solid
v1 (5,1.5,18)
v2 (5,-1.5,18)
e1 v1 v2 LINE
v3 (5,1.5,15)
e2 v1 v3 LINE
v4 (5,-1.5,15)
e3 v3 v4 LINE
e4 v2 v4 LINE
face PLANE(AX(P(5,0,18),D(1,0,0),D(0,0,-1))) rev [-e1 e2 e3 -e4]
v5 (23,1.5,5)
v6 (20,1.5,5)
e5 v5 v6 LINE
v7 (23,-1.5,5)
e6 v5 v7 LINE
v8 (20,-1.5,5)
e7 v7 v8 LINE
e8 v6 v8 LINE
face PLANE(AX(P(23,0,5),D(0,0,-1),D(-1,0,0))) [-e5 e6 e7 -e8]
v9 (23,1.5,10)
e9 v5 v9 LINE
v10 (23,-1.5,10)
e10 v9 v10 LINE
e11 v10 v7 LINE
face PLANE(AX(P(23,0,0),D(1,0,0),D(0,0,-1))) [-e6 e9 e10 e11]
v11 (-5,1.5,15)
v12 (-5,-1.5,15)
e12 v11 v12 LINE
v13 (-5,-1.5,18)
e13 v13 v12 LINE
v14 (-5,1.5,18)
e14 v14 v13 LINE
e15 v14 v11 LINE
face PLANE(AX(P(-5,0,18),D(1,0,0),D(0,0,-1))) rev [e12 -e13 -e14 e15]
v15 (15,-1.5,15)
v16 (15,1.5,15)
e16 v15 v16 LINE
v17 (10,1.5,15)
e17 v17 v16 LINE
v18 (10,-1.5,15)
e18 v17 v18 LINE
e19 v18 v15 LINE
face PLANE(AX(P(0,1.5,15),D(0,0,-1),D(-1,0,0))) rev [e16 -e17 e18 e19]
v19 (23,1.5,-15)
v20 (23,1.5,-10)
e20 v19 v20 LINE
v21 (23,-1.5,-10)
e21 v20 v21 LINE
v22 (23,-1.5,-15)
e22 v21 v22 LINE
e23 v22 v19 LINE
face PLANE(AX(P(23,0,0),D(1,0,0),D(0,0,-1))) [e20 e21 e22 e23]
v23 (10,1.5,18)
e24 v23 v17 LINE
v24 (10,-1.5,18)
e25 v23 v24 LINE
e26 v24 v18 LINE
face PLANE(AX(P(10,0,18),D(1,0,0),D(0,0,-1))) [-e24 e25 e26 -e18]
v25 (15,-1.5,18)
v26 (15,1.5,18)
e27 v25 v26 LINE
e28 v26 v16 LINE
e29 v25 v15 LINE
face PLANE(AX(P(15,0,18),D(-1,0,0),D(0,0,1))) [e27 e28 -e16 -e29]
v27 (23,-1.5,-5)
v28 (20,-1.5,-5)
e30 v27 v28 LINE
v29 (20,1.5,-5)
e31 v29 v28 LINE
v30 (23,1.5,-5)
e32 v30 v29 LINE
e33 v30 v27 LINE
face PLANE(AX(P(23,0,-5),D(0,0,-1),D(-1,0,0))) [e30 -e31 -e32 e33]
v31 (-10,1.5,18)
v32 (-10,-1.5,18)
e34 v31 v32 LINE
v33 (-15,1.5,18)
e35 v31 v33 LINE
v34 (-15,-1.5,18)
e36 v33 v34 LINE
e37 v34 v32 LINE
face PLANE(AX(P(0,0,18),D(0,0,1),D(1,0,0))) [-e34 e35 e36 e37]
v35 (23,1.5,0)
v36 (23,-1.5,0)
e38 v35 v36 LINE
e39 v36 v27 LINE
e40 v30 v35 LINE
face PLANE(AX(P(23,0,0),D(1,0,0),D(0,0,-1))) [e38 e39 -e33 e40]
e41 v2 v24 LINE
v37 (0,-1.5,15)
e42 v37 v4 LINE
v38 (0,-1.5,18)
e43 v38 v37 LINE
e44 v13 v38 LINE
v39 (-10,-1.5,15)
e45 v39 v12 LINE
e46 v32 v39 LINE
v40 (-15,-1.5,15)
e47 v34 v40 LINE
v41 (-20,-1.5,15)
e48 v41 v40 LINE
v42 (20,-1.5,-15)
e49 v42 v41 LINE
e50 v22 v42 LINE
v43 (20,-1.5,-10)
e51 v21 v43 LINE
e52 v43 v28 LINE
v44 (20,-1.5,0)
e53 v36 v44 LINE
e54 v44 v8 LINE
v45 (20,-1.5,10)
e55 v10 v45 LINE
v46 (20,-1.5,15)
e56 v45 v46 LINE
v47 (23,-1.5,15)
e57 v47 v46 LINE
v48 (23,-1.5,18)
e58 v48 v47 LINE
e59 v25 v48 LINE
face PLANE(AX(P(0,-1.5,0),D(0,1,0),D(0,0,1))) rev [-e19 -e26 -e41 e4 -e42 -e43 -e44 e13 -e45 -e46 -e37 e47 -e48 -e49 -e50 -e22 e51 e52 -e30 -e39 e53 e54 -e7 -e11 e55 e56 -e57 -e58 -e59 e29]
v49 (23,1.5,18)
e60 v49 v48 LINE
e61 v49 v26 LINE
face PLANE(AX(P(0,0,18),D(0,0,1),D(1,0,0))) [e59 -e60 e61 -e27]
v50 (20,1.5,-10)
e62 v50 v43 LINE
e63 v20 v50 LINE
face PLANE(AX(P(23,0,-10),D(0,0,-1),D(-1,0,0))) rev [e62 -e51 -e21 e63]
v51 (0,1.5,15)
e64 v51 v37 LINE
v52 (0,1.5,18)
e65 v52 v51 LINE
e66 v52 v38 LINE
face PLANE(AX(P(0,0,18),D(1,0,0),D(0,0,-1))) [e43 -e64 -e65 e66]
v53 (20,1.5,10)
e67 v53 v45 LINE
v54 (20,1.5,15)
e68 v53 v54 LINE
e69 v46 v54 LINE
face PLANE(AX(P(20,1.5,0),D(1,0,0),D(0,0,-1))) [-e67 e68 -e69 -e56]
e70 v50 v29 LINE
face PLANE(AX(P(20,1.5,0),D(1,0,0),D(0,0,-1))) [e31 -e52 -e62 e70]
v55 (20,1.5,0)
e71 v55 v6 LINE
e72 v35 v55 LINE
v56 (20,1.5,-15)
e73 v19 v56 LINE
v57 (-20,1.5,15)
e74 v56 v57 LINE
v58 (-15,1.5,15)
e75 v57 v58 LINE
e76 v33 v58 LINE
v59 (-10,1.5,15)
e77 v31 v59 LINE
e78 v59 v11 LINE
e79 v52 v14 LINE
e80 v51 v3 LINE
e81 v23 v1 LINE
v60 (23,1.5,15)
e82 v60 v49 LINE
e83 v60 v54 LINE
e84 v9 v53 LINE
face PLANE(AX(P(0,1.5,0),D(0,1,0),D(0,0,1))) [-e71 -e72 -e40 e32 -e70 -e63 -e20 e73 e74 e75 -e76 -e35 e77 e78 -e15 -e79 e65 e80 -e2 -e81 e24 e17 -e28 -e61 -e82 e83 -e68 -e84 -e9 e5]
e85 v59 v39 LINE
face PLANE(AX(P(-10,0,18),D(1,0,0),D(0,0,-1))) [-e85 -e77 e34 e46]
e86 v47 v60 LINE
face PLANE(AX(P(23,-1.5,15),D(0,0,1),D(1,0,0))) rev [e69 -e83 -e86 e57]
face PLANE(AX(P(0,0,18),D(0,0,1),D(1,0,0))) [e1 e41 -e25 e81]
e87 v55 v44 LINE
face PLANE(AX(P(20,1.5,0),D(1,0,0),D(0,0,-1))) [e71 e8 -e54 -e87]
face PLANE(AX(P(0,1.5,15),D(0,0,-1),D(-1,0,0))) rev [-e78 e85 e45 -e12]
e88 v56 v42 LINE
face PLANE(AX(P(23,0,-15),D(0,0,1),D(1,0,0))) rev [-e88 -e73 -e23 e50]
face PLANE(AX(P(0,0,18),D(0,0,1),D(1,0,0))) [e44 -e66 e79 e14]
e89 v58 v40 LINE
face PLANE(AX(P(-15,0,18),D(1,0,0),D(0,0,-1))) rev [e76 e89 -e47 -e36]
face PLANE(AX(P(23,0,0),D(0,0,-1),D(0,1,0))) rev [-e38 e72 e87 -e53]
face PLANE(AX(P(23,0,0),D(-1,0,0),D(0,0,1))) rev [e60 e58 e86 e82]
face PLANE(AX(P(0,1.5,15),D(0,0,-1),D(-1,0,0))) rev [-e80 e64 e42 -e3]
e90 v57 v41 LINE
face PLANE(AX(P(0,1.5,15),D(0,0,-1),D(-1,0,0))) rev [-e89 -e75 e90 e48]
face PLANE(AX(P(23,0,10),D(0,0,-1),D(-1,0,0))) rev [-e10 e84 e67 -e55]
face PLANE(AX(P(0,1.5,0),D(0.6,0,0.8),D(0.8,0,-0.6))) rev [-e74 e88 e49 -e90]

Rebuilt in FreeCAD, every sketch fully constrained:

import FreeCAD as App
import Part
import Sketcher

doc = App.newDocument("Part")
params = doc.addObject("Spreadsheet::Sheet", "Params")
for row, (alias, value) in enumerate([
    ("sketch1_width", "40 mm"),
    ("sketch1_height", "30 mm"),
    ("pad1_length", "3 mm"),
    ("sketch2_width", "3 mm"),
    ("sketch2_height", "5 mm"),
    ("pad2_length", "3 mm"),
    ("sketch3_width", "5 mm"),
    ("sketch3_height", "3 mm"),
    ("pad3_length", "3 mm"),
    ("sketch4_width", "3 mm"),
    ("pad4_length", "3 mm"),
], start=1):
    params.set(f"A{row}", alias)
    params.set(f"B{row}", "=" + value)
    params.setAlias(f"B{row}", alias)

body = doc.addObject("PartDesign::Body", "Body")

sketch1 = body.newObject("Sketcher::SketchObject", "Sketch")
sketch1.AttachmentSupport = (doc.getObject("XZ_Plane"), [""])
sketch1.MapMode = "FlatFace"
sketch1.addGeometry(Part.LineSegment(App.Vector(20, 15, 0), App.Vector(20, -15, 0)), False)
sketch1.addGeometry(Part.LineSegment(App.Vector(20, -15, 0), App.Vector(-20, 15, 0)), False)
sketch1.addGeometry(Part.LineSegment(App.Vector(-20, 15, 0), App.Vector(20, 15, 0)), False)
sketch1.addConstraint(Sketcher.Constraint("Coincident", 0, 2, 1, 1))
sketch1.addConstraint(Sketcher.Constraint("Coincident", 1, 2, 2, 1))
sketch1.addConstraint(Sketcher.Constraint("Coincident", 2, 2, 0, 1))
sketch1.addConstraint(Sketcher.Constraint("Vertical", 0))
sketch1.addConstraint(Sketcher.Constraint("Horizontal", 2))
sketch1.addConstraint(Sketcher.Constraint("Symmetric", 0, 2, 1, 2, -1, 1))
sketch1.addConstraint(Sketcher.Constraint("DistanceX", 2, 1, 2, 2, 40.0))
sketch1.addConstraint(Sketcher.Constraint("DistanceY", 0, 2, 0, 1, 30.0))
sketch1.setExpression("Constraints[6]", "Params.sketch1_width")
sketch1.setExpression("Constraints[7]", "Params.sketch1_height")
pad1 = body.newObject("PartDesign::Pad", "Pad")
pad1.Profile = sketch1
pad1.setExpression("Length", "Params.pad1_length")
pad1.Midplane = True

sketch2 = body.newObject("Sketcher::SketchObject", "Sketch001")
sketch2.AttachmentSupport = (doc.getObject("YZ_Plane"), [""])
sketch2.MapMode = "FlatFace"
sketch2.AttachmentOffset = App.Placement(App.Vector(0, 0, 20), App.Rotation())
sketch2.addGeometry(Part.LineSegment(App.Vector(1.5, -10, 0), App.Vector(-1.5, -10, 0)), False)
sketch2.addGeometry(Part.LineSegment(App.Vector(-1.5, -10, 0), App.Vector(-1.5, -15, 0)), False)
sketch2.addGeometry(Part.LineSegment(App.Vector(-1.5, -15, 0), App.Vector(1.5, -15, 0)), False)
sketch2.addGeometry(Part.LineSegment(App.Vector(1.5, -15, 0), App.Vector(1.5, -10, 0)), False)
sketch2.addGeometry(Part.LineSegment(App.Vector(1.5, 0, 0), App.Vector(-1.5, 0, 0)), False)
sketch2.addGeometry(Part.LineSegment(App.Vector(-1.5, 0, 0), App.Vector(-1.5, -5, 0)), False)
sketch2.addGeometry(Part.LineSegment(App.Vector(-1.5, -5, 0), App.Vector(1.5, -5, 0)), False)
sketch2.addGeometry(Part.LineSegment(App.Vector(1.5, -5, 0), App.Vector(1.5, 0, 0)), False)
sketch2.addGeometry(Part.LineSegment(App.Vector(1.5, 10, 0), App.Vector(-1.5, 10, 0)), False)
sketch2.addGeometry(Part.LineSegment(App.Vector(-1.5, 10, 0), App.Vector(-1.5, 5, 0)), False)
sketch2.addGeometry(Part.LineSegment(App.Vector(-1.5, 5, 0), App.Vector(1.5, 5, 0)), False)
sketch2.addGeometry(Part.LineSegment(App.Vector(1.5, 5, 0), App.Vector(1.5, 10, 0)), False)
sketch2.addConstraint(Sketcher.Constraint("Coincident", 0, 2, 1, 1))
sketch2.addConstraint(Sketcher.Constraint("Coincident", 1, 2, 2, 1))
sketch2.addConstraint(Sketcher.Constraint("Coincident", 2, 2, 3, 1))
sketch2.addConstraint(Sketcher.Constraint("Coincident", 3, 2, 0, 1))
sketch2.addConstraint(Sketcher.Constraint("Coincident", 4, 2, 5, 1))
sketch2.addConstraint(Sketcher.Constraint("Coincident", 5, 2, 6, 1))
sketch2.addConstraint(Sketcher.Constraint("Coincident", 6, 2, 7, 1))
sketch2.addConstraint(Sketcher.Constraint("Coincident", 7, 2, 4, 1))
sketch2.addConstraint(Sketcher.Constraint("Coincident", 8, 2, 9, 1))
sketch2.addConstraint(Sketcher.Constraint("Coincident", 9, 2, 10, 1))
sketch2.addConstraint(Sketcher.Constraint("Coincident", 10, 2, 11, 1))
sketch2.addConstraint(Sketcher.Constraint("Coincident", 11, 2, 8, 1))
sketch2.addConstraint(Sketcher.Constraint("Horizontal", 0))
sketch2.addConstraint(Sketcher.Constraint("Vertical", 1))
sketch2.addConstraint(Sketcher.Constraint("Horizontal", 2))
sketch2.addConstraint(Sketcher.Constraint("Vertical", 3))
sketch2.addConstraint(Sketcher.Constraint("Horizontal", 4))
sketch2.addConstraint(Sketcher.Constraint("Vertical", 5))
sketch2.addConstraint(Sketcher.Constraint("Horizontal", 6))
sketch2.addConstraint(Sketcher.Constraint("Vertical", 7))
sketch2.addConstraint(Sketcher.Constraint("Horizontal", 8))
sketch2.addConstraint(Sketcher.Constraint("Vertical", 9))
sketch2.addConstraint(Sketcher.Constraint("Horizontal", 10))
sketch2.addConstraint(Sketcher.Constraint("Vertical", 11))
sketch2.addConstraint(Sketcher.Constraint("Symmetric", 4, 2, 7, 2, -1, 1))
sketch2.addConstraint(Sketcher.Constraint("Symmetric", 3, 2, 8, 2, -1, 1))
sketch2.addConstraint(Sketcher.Constraint("Symmetric", 6, 2, 9, 2, -1, 1))
sketch2.addConstraint(Sketcher.Constraint("Vertical", 1, 2, 4, 2))
sketch2.addConstraint(Sketcher.Constraint("Vertical", 7, 2, 10, 2))
sketch2.addConstraint(Sketcher.Constraint("Equal", 3, 5))
sketch2.addConstraint(Sketcher.Constraint("Equal", 7, 9))
sketch2.addConstraint(Sketcher.Constraint("DistanceX", 0, 2, 0, 1, 3.0))
sketch2.addConstraint(Sketcher.Constraint("DistanceY", 1, 2, 1, 1, 5.0))
sketch2.setExpression("Constraints[31]", "Params.sketch2_width")
sketch2.setExpression("Constraints[32]", "Params.sketch2_height")
pad2 = body.newObject("PartDesign::Pad", "Pad001")
pad2.Profile = sketch2
pad2.setExpression("Length", "Params.pad2_length")

sketch3 = body.newObject("Sketcher::SketchObject", "Sketch002")
sketch3.AttachmentSupport = (doc.getObject("XY_Plane"), [""])
sketch3.MapMode = "FlatFace"
sketch3.AttachmentOffset = App.Placement(App.Vector(0, 0, 15), App.Rotation())
sketch3.addGeometry(Part.LineSegment(App.Vector(15, 1.5, 0), App.Vector(15, -1.5, 0)), False)
sketch3.addGeometry(Part.LineSegment(App.Vector(15, -1.5, 0), App.Vector(20, -1.5, 0)), False)
sketch3.addGeometry(Part.LineSegment(App.Vector(20, -1.5, 0), App.Vector(20, 1.5, 0)), False)
sketch3.addGeometry(Part.LineSegment(App.Vector(20, 1.5, 0), App.Vector(15, 1.5, 0)), False)
sketch3.addGeometry(Part.LineSegment(App.Vector(5, 1.5, 0), App.Vector(5, -1.5, 0)), False)
sketch3.addGeometry(Part.LineSegment(App.Vector(5, -1.5, 0), App.Vector(10, -1.5, 0)), False)
sketch3.addGeometry(Part.LineSegment(App.Vector(10, -1.5, 0), App.Vector(10, 1.5, 0)), False)
sketch3.addGeometry(Part.LineSegment(App.Vector(10, 1.5, 0), App.Vector(5, 1.5, 0)), False)
sketch3.addGeometry(Part.LineSegment(App.Vector(-5, 1.5, 0), App.Vector(-5, -1.5, 0)), False)
sketch3.addGeometry(Part.LineSegment(App.Vector(-5, -1.5, 0), App.Vector(0, -1.5, 0)), False)
sketch3.addGeometry(Part.LineSegment(App.Vector(0, -1.5, 0), App.Vector(0, 1.5, 0)), False)
sketch3.addGeometry(Part.LineSegment(App.Vector(0, 1.5, 0), App.Vector(-5, 1.5, 0)), False)
sketch3.addGeometry(Part.LineSegment(App.Vector(-15, 1.5, 0), App.Vector(-15, -1.5, 0)), False)
sketch3.addGeometry(Part.LineSegment(App.Vector(-15, -1.5, 0), App.Vector(-10, -1.5, 0)), False)
sketch3.addGeometry(Part.LineSegment(App.Vector(-10, -1.5, 0), App.Vector(-10, 1.5, 0)), False)
sketch3.addGeometry(Part.LineSegment(App.Vector(-10, 1.5, 0), App.Vector(-15, 1.5, 0)), False)
sketch3.addConstraint(Sketcher.Constraint("Coincident", 0, 2, 1, 1))
sketch3.addConstraint(Sketcher.Constraint("Coincident", 1, 2, 2, 1))
sketch3.addConstraint(Sketcher.Constraint("Coincident", 2, 2, 3, 1))
sketch3.addConstraint(Sketcher.Constraint("Coincident", 3, 2, 0, 1))
sketch3.addConstraint(Sketcher.Constraint("Coincident", 4, 2, 5, 1))
sketch3.addConstraint(Sketcher.Constraint("Coincident", 5, 2, 6, 1))
sketch3.addConstraint(Sketcher.Constraint("Coincident", 6, 2, 7, 1))
sketch3.addConstraint(Sketcher.Constraint("Coincident", 7, 2, 4, 1))
sketch3.addConstraint(Sketcher.Constraint("Coincident", 8, 2, 9, 1))
sketch3.addConstraint(Sketcher.Constraint("Coincident", 9, 2, 10, 1))
sketch3.addConstraint(Sketcher.Constraint("Coincident", 10, 2, 11, 1))
sketch3.addConstraint(Sketcher.Constraint("Coincident", 11, 2, 8, 1))
sketch3.addConstraint(Sketcher.Constraint("Coincident", 12, 2, 13, 1))
sketch3.addConstraint(Sketcher.Constraint("Coincident", 13, 2, 14, 1))
sketch3.addConstraint(Sketcher.Constraint("Coincident", 14, 2, 15, 1))
sketch3.addConstraint(Sketcher.Constraint("Coincident", 15, 2, 12, 1))
sketch3.addConstraint(Sketcher.Constraint("Vertical", 0))
sketch3.addConstraint(Sketcher.Constraint("Horizontal", 1))
sketch3.addConstraint(Sketcher.Constraint("Vertical", 2))
sketch3.addConstraint(Sketcher.Constraint("Horizontal", 3))
sketch3.addConstraint(Sketcher.Constraint("Vertical", 4))
sketch3.addConstraint(Sketcher.Constraint("Horizontal", 5))
sketch3.addConstraint(Sketcher.Constraint("Vertical", 6))
sketch3.addConstraint(Sketcher.Constraint("Horizontal", 7))
sketch3.addConstraint(Sketcher.Constraint("Vertical", 8))
sketch3.addConstraint(Sketcher.Constraint("Horizontal", 9))
sketch3.addConstraint(Sketcher.Constraint("Vertical", 10))
sketch3.addConstraint(Sketcher.Constraint("Horizontal", 11))
sketch3.addConstraint(Sketcher.Constraint("Vertical", 12))
sketch3.addConstraint(Sketcher.Constraint("Horizontal", 13))
sketch3.addConstraint(Sketcher.Constraint("Vertical", 14))
sketch3.addConstraint(Sketcher.Constraint("Horizontal", 15))
sketch3.addConstraint(Sketcher.Constraint("Symmetric", 7, 2, 8, 2, -1, 1))
sketch3.addConstraint(Sketcher.Constraint("Symmetric", 9, 2, 10, 2, -1, 1))
sketch3.addConstraint(Sketcher.Constraint("Symmetric", 3, 2, 12, 2, -1, 1))
sketch3.addConstraint(Sketcher.Constraint("Symmetric", 6, 2, 13, 2, -1, 1))
sketch3.addConstraint(Sketcher.Constraint("Horizontal", 1, 2, 4, 2))
sketch3.addConstraint(Sketcher.Constraint("Horizontal", 5, 2, 8, 2))
sketch3.addConstraint(Sketcher.Constraint("Horizontal", 11, 2, 14, 2))
sketch3.addConstraint(Sketcher.Constraint("Equal", 3, 5))
sketch3.addConstraint(Sketcher.Constraint("Equal", 7, 9))
sketch3.addConstraint(Sketcher.Constraint("Equal", 11, 13))
sketch3.addConstraint(Sketcher.Constraint("DistanceX", 1, 1, 1, 2, 5.0))
sketch3.addConstraint(Sketcher.Constraint("DistanceY", 0, 2, 0, 1, 3.0))
sketch3.setExpression("Constraints[42]", "Params.sketch3_width")
sketch3.setExpression("Constraints[43]", "Params.sketch3_height")
pad3 = body.newObject("PartDesign::Pad", "Pad002")
pad3.Profile = sketch3
pad3.setExpression("Length", "Params.pad3_length")

sketch4 = body.newObject("Sketcher::SketchObject", "Sketch003")
sketch4.AttachmentSupport = (doc.getObject("YZ_Plane"), [""])
sketch4.MapMode = "FlatFace"
sketch4.AttachmentOffset = App.Placement(App.Vector(0, 0, 20), App.Rotation())
sketch4.addGeometry(Part.LineSegment(App.Vector(1.5, 18, 0), App.Vector(-1.5, 18, 0)), False)
sketch4.addGeometry(Part.LineSegment(App.Vector(-1.5, 18, 0), App.Vector(-1.5, 15, 0)), False)
sketch4.addGeometry(Part.LineSegment(App.Vector(-1.5, 15, 0), App.Vector(1.5, 15, 0)), False)
sketch4.addGeometry(Part.LineSegment(App.Vector(1.5, 15, 0), App.Vector(1.5, 18, 0)), False)
sketch4.addConstraint(Sketcher.Constraint("Coincident", 0, 2, 1, 1))
sketch4.addConstraint(Sketcher.Constraint("Coincident", 1, 2, 2, 1))
sketch4.addConstraint(Sketcher.Constraint("Coincident", 2, 2, 3, 1))
sketch4.addConstraint(Sketcher.Constraint("Coincident", 3, 2, 0, 1))
sketch4.addConstraint(Sketcher.Constraint("Horizontal", 0))
sketch4.addConstraint(Sketcher.Constraint("Vertical", 1))
sketch4.addConstraint(Sketcher.Constraint("Horizontal", 2))
sketch4.addConstraint(Sketcher.Constraint("Vertical", 3))
sketch4.addConstraint(Sketcher.Constraint("Equal", 2, 1))
sketch4.addConstraint(Sketcher.Constraint("DistanceX", 0, 2, 0, 1, 3.0))
sketch4.addConstraint(Sketcher.Constraint("DistanceY", -1, 1, 0, 2, 18.0))
sketch4.addConstraint(Sketcher.Constraint("DistanceX", 0, 2, -1, 1, 1.5))
sketch4.setExpression("Constraints[9]", "Params.sketch4_width")
pad4 = body.newObject("PartDesign::Pad", "Pad003")
pad4.Profile = sketch4
pad4.setExpression("Length", "Params.pad4_length")

doc.recompute()
